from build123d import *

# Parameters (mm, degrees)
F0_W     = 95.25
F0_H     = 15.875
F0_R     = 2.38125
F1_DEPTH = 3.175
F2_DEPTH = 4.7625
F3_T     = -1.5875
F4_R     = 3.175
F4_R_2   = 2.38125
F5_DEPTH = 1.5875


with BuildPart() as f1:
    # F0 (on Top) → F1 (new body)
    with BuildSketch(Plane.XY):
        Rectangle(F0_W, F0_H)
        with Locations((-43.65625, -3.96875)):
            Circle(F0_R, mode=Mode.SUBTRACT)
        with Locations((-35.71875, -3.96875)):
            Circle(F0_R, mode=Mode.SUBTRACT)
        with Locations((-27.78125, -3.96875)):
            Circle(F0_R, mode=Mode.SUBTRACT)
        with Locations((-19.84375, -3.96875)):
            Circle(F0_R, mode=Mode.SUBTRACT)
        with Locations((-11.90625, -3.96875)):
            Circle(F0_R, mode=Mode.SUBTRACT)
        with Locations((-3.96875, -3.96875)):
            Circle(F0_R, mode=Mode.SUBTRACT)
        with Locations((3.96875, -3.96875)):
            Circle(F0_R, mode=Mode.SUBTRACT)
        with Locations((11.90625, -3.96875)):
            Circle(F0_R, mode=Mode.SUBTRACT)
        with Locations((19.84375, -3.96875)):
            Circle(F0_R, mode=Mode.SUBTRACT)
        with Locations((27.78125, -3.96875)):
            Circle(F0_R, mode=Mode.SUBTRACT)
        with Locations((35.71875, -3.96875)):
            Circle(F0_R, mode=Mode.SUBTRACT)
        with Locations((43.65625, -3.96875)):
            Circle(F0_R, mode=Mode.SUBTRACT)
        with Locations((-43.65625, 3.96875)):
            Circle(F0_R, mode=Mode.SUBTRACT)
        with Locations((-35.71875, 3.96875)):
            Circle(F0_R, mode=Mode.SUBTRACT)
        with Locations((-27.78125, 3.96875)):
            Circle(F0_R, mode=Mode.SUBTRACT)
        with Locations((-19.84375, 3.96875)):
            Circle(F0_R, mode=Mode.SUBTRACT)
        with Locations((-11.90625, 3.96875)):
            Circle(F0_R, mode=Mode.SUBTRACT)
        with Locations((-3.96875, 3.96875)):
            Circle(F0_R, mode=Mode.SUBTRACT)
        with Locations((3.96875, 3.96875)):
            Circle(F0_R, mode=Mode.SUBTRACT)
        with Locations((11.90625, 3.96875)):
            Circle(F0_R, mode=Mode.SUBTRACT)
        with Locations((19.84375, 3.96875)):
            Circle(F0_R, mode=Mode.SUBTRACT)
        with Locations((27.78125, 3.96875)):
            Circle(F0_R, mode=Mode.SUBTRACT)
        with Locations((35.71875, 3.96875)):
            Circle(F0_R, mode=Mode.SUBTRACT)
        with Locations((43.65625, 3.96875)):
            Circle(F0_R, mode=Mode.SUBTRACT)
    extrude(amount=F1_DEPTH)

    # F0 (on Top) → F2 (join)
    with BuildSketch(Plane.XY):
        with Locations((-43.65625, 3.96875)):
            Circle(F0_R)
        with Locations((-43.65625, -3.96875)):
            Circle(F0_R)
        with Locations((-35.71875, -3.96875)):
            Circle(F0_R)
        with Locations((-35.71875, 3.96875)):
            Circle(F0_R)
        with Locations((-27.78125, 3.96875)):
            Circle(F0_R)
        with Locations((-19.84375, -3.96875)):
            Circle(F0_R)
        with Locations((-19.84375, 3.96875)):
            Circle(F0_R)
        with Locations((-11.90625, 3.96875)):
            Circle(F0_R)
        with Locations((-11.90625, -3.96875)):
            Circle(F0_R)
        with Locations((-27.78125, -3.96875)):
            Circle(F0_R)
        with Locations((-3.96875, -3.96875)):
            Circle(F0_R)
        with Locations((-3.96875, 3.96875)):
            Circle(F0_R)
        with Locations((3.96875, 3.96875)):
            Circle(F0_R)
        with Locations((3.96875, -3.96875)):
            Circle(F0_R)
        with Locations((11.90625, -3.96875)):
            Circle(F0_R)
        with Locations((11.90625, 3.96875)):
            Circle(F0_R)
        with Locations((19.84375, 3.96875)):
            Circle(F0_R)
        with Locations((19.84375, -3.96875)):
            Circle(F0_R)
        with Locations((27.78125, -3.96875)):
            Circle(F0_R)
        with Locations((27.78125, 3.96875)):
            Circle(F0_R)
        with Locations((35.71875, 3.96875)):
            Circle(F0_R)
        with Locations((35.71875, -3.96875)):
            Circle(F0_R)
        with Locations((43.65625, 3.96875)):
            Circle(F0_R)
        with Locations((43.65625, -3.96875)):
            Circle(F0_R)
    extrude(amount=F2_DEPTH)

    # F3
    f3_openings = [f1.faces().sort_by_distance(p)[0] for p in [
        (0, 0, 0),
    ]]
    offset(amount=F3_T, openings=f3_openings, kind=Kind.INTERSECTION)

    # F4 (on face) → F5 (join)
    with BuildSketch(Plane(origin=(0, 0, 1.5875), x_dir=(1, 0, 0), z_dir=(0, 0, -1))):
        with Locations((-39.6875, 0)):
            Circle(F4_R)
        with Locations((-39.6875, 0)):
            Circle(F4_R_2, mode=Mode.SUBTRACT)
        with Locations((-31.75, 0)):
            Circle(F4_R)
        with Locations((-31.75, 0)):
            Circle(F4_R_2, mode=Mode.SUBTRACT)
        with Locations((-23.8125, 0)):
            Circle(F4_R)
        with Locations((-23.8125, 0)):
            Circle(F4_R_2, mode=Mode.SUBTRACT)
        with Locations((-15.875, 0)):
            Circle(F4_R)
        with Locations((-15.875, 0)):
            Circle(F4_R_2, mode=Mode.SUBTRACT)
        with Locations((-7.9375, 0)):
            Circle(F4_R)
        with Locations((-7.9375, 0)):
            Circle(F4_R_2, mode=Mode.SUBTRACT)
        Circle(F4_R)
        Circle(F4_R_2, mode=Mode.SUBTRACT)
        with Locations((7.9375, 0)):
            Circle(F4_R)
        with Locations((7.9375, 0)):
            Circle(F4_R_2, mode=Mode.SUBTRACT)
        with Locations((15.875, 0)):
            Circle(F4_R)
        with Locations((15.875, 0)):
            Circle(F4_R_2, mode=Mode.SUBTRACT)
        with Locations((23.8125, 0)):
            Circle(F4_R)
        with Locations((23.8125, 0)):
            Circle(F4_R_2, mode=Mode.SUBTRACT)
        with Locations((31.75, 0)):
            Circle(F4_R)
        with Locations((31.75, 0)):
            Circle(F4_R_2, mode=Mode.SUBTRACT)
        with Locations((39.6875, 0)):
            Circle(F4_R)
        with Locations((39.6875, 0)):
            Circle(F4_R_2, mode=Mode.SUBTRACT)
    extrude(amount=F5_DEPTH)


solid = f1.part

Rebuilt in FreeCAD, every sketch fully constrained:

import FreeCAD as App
import Part
import Sketcher
Q = App.Units.Quantity


def faces_at(feature, points):
    """Names of the faces that lie closest to the given points."""
    faces = feature.Shape.Faces
    near = lambda p: min(range(len(faces)), key=lambda i: faces[i].distToShape(Part.Vertex(*p))[0])
    return sorted({f"Face{near(p) + 1}" for p in points})

doc = App.newDocument("Part")
body = doc.addObject("PartDesign::Body", "Body")

sketch1 = body.newObject("Sketcher::SketchObject", "Sketch")
sketch1.AttachmentSupport = (doc.getObject("XY_Plane"), [""])
sketch1.MapMode = "FlatFace"
sketch1.addGeometry([
    Part.LineSegment(App.Vector(-47.6, 7.9, 0), App.Vector(-47.6, -7.9, 0)),
    Part.LineSegment(App.Vector(-47.6, -7.9, 0), App.Vector(47.6, -7.9, 0)),
    Part.LineSegment(App.Vector(47.6, -7.9, 0), App.Vector(47.6, 7.9, 0)),
    Part.LineSegment(App.Vector(47.6, 7.9, 0), App.Vector(-47.6, 7.9, 0)),
    Part.Circle(App.Vector(-43.7, -4, 0), App.Vector(0, 0, 1), 2.4),
    Part.Circle(App.Vector(-35.7, -4, 0), App.Vector(0, 0, 1), 2.4),
    Part.Circle(App.Vector(-27.8, -4, 0), App.Vector(0, 0, 1), 2.4),
    Part.Circle(App.Vector(-19.8, -4, 0), App.Vector(0, 0, 1), 2.4),
    Part.Circle(App.Vector(-11.9, -4, 0), App.Vector(0, 0, 1), 2.4),
    Part.Circle(App.Vector(-4, -4, 0), App.Vector(0, 0, 1), 2.4),
    Part.Circle(App.Vector(4, -4, 0), App.Vector(0, 0, 1), 2.4),
    Part.Circle(App.Vector(11.9, -4, 0), App.Vector(0, 0, 1), 2.4),
    Part.Circle(App.Vector(19.8, -4, 0), App.Vector(0, 0, 1), 2.4),
    Part.Circle(App.Vector(27.8, -4, 0), App.Vector(0, 0, 1), 2.4),
    Part.Circle(App.Vector(35.7, -4, 0), App.Vector(0, 0, 1), 2.4),
    Part.Circle(App.Vector(43.7, -4, 0), App.Vector(0, 0, 1), 2.4),
    Part.Circle(App.Vector(-43.7, 4, 0), App.Vector(0, 0, 1), 2.4),
    Part.Circle(App.Vector(-35.7, 4, 0), App.Vector(0, 0, 1), 2.4),
    Part.Circle(App.Vector(-27.8, 4, 0), App.Vector(0, 0, 1), 2.4),
    Part.Circle(App.Vector(-19.8, 4, 0), App.Vector(0, 0, 1), 2.4),
    Part.Circle(App.Vector(-11.9, 4, 0), App.Vector(0, 0, 1), 2.4),
    Part.Circle(App.Vector(-4, 4, 0), App.Vector(0, 0, 1), 2.4),
    Part.Circle(App.Vector(4, 4, 0), App.Vector(0, 0, 1), 2.4),
    Part.Circle(App.Vector(11.9, 4, 0), App.Vector(0, 0, 1), 2.4),
    Part.Circle(App.Vector(19.8, 4, 0), App.Vector(0, 0, 1), 2.4),
    Part.Circle(App.Vector(27.8, 4, 0), App.Vector(0, 0, 1), 2.4),
    Part.Circle(App.Vector(35.7, 4, 0), App.Vector(0, 0, 1), 2.4),
    Part.Circle(App.Vector(43.7, 4, 0), App.Vector(0, 0, 1), 2.4),
], False)
sketch1.addConstraint([
    Sketcher.Constraint("Coincident", 0, 2, 1, 1),
    Sketcher.Constraint("Coincident", 1, 2, 2, 1),
    Sketcher.Constraint("Coincident", 2, 2, 3, 1),
    Sketcher.Constraint("Coincident", 3, 2, 0, 1),
    Sketcher.Constraint("Vertical", 0),
    Sketcher.Constraint("Horizontal", 1),
    Sketcher.Constraint("Vertical", 2),
    Sketcher.Constraint("Horizontal", 3),
    Sketcher.Constraint("Equal", 4, 5),
    Sketcher.Constraint("Equal", 5, 6),
    Sketcher.Constraint("Equal", 6, 7),
    Sketcher.Constraint("Equal", 7, 8),
    Sketcher.Constraint("Equal", 8, 9),
    Sketcher.Constraint("Equal", 9, 10),
    Sketcher.Constraint("Equal", 10, 11),
    Sketcher.Constraint("Equal", 11, 12),
    Sketcher.Constraint("Equal", 12, 13),
    Sketcher.Constraint("Equal", 13, 14),
    Sketcher.Constraint("Equal", 14, 15),
    Sketcher.Constraint("Equal", 15, 16),
    Sketcher.Constraint("Equal", 16, 17),
    Sketcher.Constraint("Equal", 17, 18),
    Sketcher.Constraint("Equal", 18, 19),
    Sketcher.Constraint("Equal", 19, 20),
    Sketcher.Constraint("Equal", 20, 21),
    Sketcher.Constraint("Equal", 21, 22),
    Sketcher.Constraint("Equal", 22, 23),
    Sketcher.Constraint("Equal", 23, 24),
    Sketcher.Constraint("Equal", 24, 25),
    Sketcher.Constraint("Equal", 25, 26),
    Sketcher.Constraint("Equal", 26, 27),
    Sketcher.Constraint("Symmetric", 15, 3, 16, 3, -1, 1),
    Sketcher.Constraint("Symmetric", 14, 3, 17, 3, -1, 1),
    Sketcher.Constraint("Symmetric", 13, 3, 18, 3, -1, 1),
    Sketcher.Constraint("Symmetric", 12, 3, 19, 3, -1, 1),
    Sketcher.Constraint("Symmetric", 11, 3, 20, 3, -1, 1),
    Sketcher.Constraint("Symmetric", 10, 3, 21, 3, -1, 1),
    Sketcher.Constraint("Symmetric", 9, 3, 22, 3, -1, 1),
    Sketcher.Constraint("Symmetric", 8, 3, 23, 3, -1, 1),
    Sketcher.Constraint("Symmetric", 7, 3, 24, 3, -1, 1),
    Sketcher.Constraint("Symmetric", 6, 3, 25, 3, -1, 1),
    Sketcher.Constraint("Symmetric", 5, 3, 26, 3, -1, 1),
    Sketcher.Constraint("Symmetric", 4, 3, 27, 3, -1, 1),
    Sketcher.Constraint("Symmetric", 0, 2, 2, 2, -1, 1),
    Sketcher.Constraint("Symmetric", 9, 3, 10, 3, -2),
    Sketcher.Constraint("Symmetric", 8, 3, 11, 3, -2),
    Sketcher.Constraint("Symmetric", 7, 3, 12, 3, -2),
    Sketcher.Constraint("Symmetric", 6, 3, 13, 3, -2),
    Sketcher.Constraint("Symmetric", 5, 3, 14, 3, -2),
    Sketcher.Constraint("Symmetric", 4, 3, 15, 3, -2),
    Sketcher.Constraint("Horizontal", 4, 3, 5, 3),
    Sketcher.Constraint("Horizontal", 5, 3, 6, 3),
    Sketcher.Constraint("Horizontal", 6, 3, 7, 3),
    Sketcher.Constraint("Horizontal", 7, 3, 8, 3),
    Sketcher.Constraint("Horizontal", 8, 3, 9, 3),
    Sketcher.Constraint("Diameter", 4, Q("0.1875 in")),
    Sketcher.Constraint("DistanceX", 1, 1, 1, 2, Q("3.75 in")),
    Sketcher.Constraint("DistanceY", 0, 2, 0, 1, Q("0.625 in")),
    Sketcher.Constraint("DistanceX", 4, 3, 8, 3, Q("1.25 in")),
    Sketcher.Constraint("DistanceX", 5, 3, 9, 3, Q("1.25 in")),
    Sketcher.Constraint("DistanceX", 6, 3, 10, 3, Q("1.25 in")),
    Sketcher.Constraint("DistanceX", 7, 3, 11, 3, Q("1.25 in")),
    Sketcher.Constraint("DistanceX", 4, 3, -1, 1, Q("1.71875 in")),
    Sketcher.Constraint("DistanceY", 4, 3, -1, 1, Q("0.15625 in")),
    Sketcher.Constraint("DistanceX", 5, 3, -1, 1, Q("1.40625 in")),
])
pad1 = body.newObject("PartDesign::Pad", "Pad")
pad1.Profile = sketch1
pad1.Length = Q("0.125 in")

sketch2 = body.newObject("Sketcher::SketchObject", "Sketch001")
sketch2.AttachmentSupport = (doc.getObject("XY_Plane"), [""])
sketch2.MapMode = "FlatFace"
sketch2.addGeometry([
    Part.Circle(App.Vector(-43.7, 4, 0), App.Vector(0, 0, 1), 2.4),
    Part.Circle(App.Vector(-43.7, -4, 0), App.Vector(0, 0, 1), 2.4),
    Part.Circle(App.Vector(-35.7, -4, 0), App.Vector(0, 0, 1), 2.4),
    Part.Circle(App.Vector(-35.7, 4, 0), App.Vector(0, 0, 1), 2.4),
    Part.Circle(App.Vector(-27.8, 4, 0), App.Vector(0, 0, 1), 2.4),
    Part.Circle(App.Vector(-19.8, -4, 0), App.Vector(0, 0, 1), 2.4),
    Part.Circle(App.Vector(-19.8, 4, 0), App.Vector(0, 0, 1), 2.4),
    Part.Circle(App.Vector(-11.9, 4, 0), App.Vector(0, 0, 1), 2.4),
    Part.Circle(App.Vector(-11.9, -4, 0), App.Vector(0, 0, 1), 2.4),
    Part.Circle(App.Vector(-27.8, -4, 0), App.Vector(0, 0, 1), 2.4),
    Part.Circle(App.Vector(-4, -4, 0), App.Vector(0, 0, 1), 2.4),
    Part.Circle(App.Vector(-4, 4, 0), App.Vector(0, 0, 1), 2.4),
    Part.Circle(App.Vector(4, 4, 0), App.Vector(0, 0, 1), 2.4),
    Part.Circle(App.Vector(4, -4, 0), App.Vector(0, 0, 1), 2.4),
    Part.Circle(App.Vector(11.9, -4, 0), App.Vector(0, 0, 1), 2.4),
    Part.Circle(App.Vector(11.9, 4, 0), App.Vector(0, 0, 1), 2.4),
    Part.Circle(App.Vector(19.8, 4, 0), App.Vector(0, 0, 1), 2.4),
    Part.Circle(App.Vector(19.8, -4, 0), App.Vector(0, 0, 1), 2.4),
    Part.Circle(App.Vector(27.8, -4, 0), App.Vector(0, 0, 1), 2.4),
    Part.Circle(App.Vector(27.8, 4, 0), App.Vector(0, 0, 1), 2.4),
    Part.Circle(App.Vector(35.7, 4, 0), App.Vector(0, 0, 1), 2.4),
    Part.Circle(App.Vector(35.7, -4, 0), App.Vector(0, 0, 1), 2.4),
    Part.Circle(App.Vector(43.7, 4, 0), App.Vector(0, 0, 1), 2.4),
    Part.Circle(App.Vector(43.7, -4, 0), App.Vector(0, 0, 1), 2.4),
], False)
sketch2.addConstraint([
    Sketcher.Constraint("Equal", 0, 1),
    Sketcher.Constraint("Equal", 1, 2),
    Sketcher.Constraint("Equal", 2, 3),
    Sketcher.Constraint("Equal", 3, 4),
    Sketcher.Constraint("Equal", 4, 5),
    Sketcher.Constraint("Equal", 5, 6),
    Sketcher.Constraint("Equal", 6, 7),
    Sketcher.Constraint("Equal", 7, 8),
    Sketcher.Constraint("Equal", 8, 9),
    Sketcher.Constraint("Equal", 9, 10),
    Sketcher.Constraint("Equal", 10, 11),
    Sketcher.Constraint("Equal", 11, 12),
    Sketcher.Constraint("Equal", 12, 13),
    Sketcher.Constraint("Equal", 13, 14),
    Sketcher.Constraint("Equal", 14, 15),
    Sketcher.Constraint("Equal", 15, 16),
    Sketcher.Constraint("Equal", 16, 17),
    Sketcher.Constraint("Equal", 17, 18),
    Sketcher.Constraint("Equal", 18, 19),
    Sketcher.Constraint("Equal", 19, 20),
    Sketcher.Constraint("Equal", 20, 21),
    Sketcher.Constraint("Equal", 21, 22),
    Sketcher.Constraint("Equal", 22, 23),
    Sketcher.Constraint("Symmetric", 10, 3, 12, 3, -1, 1),
    Sketcher.Constraint("Symmetric", 11, 3, 13, 3, -1, 1),
    Sketcher.Constraint("Symmetric", 7, 3, 14, 3, -1, 1),
    Sketcher.Constraint("Symmetric", 8, 3, 15, 3, -1, 1),
    Sketcher.Constraint("Symmetric", 5, 3, 16, 3, -1, 1),
    Sketcher.Constraint("Symmetric", 6, 3, 17, 3, -1, 1),
    Sketcher.Constraint("Symmetric", 4, 3, 18, 3, -1, 1),
    Sketcher.Constraint("Symmetric", 9, 3, 19, 3, -1, 1),
    Sketcher.Constraint("Symmetric", 2, 3, 20, 3, -1, 1),
    Sketcher.Constraint("Symmetric", 3, 3, 21, 3, -1, 1),
    Sketcher.Constraint("Symmetric", 1, 3, 22, 3, -1, 1),
    Sketcher.Constraint("Symmetric", 0, 3, 23, 3, -1, 1),
    Sketcher.Constraint("Symmetric", 11, 3, 12, 3, -2),
    Sketcher.Constraint("Symmetric", 8, 3, 14, 3, -2),
    Sketcher.Constraint("Symmetric", 6, 3, 16, 3, -2),
    Sketcher.Constraint("Symmetric", 9, 3, 18, 3, -2),
    Sketcher.Constraint("Symmetric", 3, 3, 20, 3, -2),
    Sketcher.Constraint("Symmetric", 0, 3, 22, 3, -2),
    Sketcher.Constraint("Horizontal", 1, 3, 2, 3),
    Sketcher.Constraint("Horizontal", 3, 3, 4, 3),
    Sketcher.Constraint("Horizontal", 2, 3, 5, 3),
    Sketcher.Constraint("Horizontal", 6, 3, 7, 3),
    Sketcher.Constraint("Horizontal", 9, 3, 10, 3),
    Sketcher.Constraint("Diameter", 0, Q("0.1875 in")),
    Sketcher.Constraint("DistanceX", 0, 3, -1, 1, Q("1.71875 in")),
    Sketcher.Constraint("DistanceY", -1, 1, 0, 3, Q("0.15625 in")),
    Sketcher.Constraint("DistanceX", 2, 3, -1, 1, Q("1.40625 in")),
    Sketcher.Constraint("DistanceX", 4, 3, -1, 1, Q("1.09375 in")),
    Sketcher.Constraint("DistanceX", 5, 3, -1, 1, Q("0.78125 in")),
    Sketcher.Constraint("DistanceX", 7, 3, -1, 1, Q("0.46875 in")),
    Sketcher.Constraint("DistanceX", 10, 3, -1, 1, Q("0.15625 in")),
])
pad2 = body.newObject("PartDesign::Pad", "Pad001")
pad2.Profile = sketch2
pad2.Length = Q("0.1875 in")
doc.recompute()

thickness = body.newObject("PartDesign::Thickness", "Thickness")
thickness.Base = (pad2, faces_at(pad2, [(0, 0, 0)]))
thickness.Value = Q("0.0625 in")
thickness.Reversed = True
thickness.Join = "Intersection"

sketch3 = body.newObject("Sketcher::SketchObject", "Sketch002")
sketch3.AttachmentSupport = (doc.getObject("XY_Plane"), [""])
sketch3.MapMode = "FlatFace"
sketch3.AttachmentOffset = App.Placement(App.Vector(0, 0, 0.0625 * 25.4), App.Rotation())
sketch3.addGeometry([
    Part.Circle(App.Vector(-39.7, 0, 0), App.Vector(0, 0, 1), 3.2),
    Part.Circle(App.Vector(-39.7, 0, 0), App.Vector(0, 0, 1), 2.4),
    Part.Circle(App.Vector(-31.8, 0, 0), App.Vector(0, 0, 1), 3.2),
    Part.Circle(App.Vector(-31.8, 0, 0), App.Vector(0, 0, 1), 2.4),
    Part.Circle(App.Vector(-23.8, 0, 0), App.Vector(0, 0, 1), 3.2),
    Part.Circle(App.Vector(-23.8, 0, 0), App.Vector(0, 0, 1), 2.4),
    Part.Circle(App.Vector(-15.9, 0, 0), App.Vector(0, 0, 1), 3.2),
    Part.Circle(App.Vector(-15.9, 0, 0), App.Vector(0, 0, 1), 2.4),
    Part.Circle(App.Vector(-7.9, 0, 0), App.Vector(0, 0, 1), 3.2),
    Part.Circle(App.Vector(-7.9, 0, 0), App.Vector(0, 0, 1), 2.4),
    Part.Circle(App.Vector(0, 0, 0), App.Vector(0, 0, 1), 3.2),
    Part.Circle(App.Vector(0, 0, 0), App.Vector(0, 0, 1), 2.4),
    Part.Circle(App.Vector(7.9, 0, 0), App.Vector(0, 0, 1), 3.2),
    Part.Circle(App.Vector(7.9, 0, 0), App.Vector(0, 0, 1), 2.4),
    Part.Circle(App.Vector(15.9, 0, 0), App.Vector(0, 0, 1), 3.2),
    Part.Circle(App.Vector(15.9, 0, 0), App.Vector(0, 0, 1), 2.4),
    Part.Circle(App.Vector(23.8, 0, 0), App.Vector(0, 0, 1), 3.2),
    Part.Circle(App.Vector(23.8, 0, 0), App.Vector(0, 0, 1), 2.4),
    Part.Circle(App.Vector(31.8, 0, 0), App.Vector(0, 0, 1), 3.2),
    Part.Circle(App.Vector(31.8, 0, 0), App.Vector(0, 0, 1), 2.4),
    Part.Circle(App.Vector(39.7, 0, 0), App.Vector(0, 0, 1), 3.2),
    Part.Circle(App.Vector(39.7, 0, 0), App.Vector(0, 0, 1), 2.4),
], False)
sketch3.addConstraint([
    Sketcher.Constraint("Coincident", 10, 3, -1, 1),
    Sketcher.Constraint("Coincident", 11, 3, -1, 1),
    Sketcher.Constraint("Coincident", 1, 3, 0, 3),
    Sketcher.Constraint("Coincident", 3, 3, 2, 3),
    Sketcher.Constraint("Coincident", 5, 3, 4, 3),
    Sketcher.Constraint("Coincident", 7, 3, 6, 3),
    Sketcher.Constraint("Coincident", 9, 3, 8, 3),
    Sketcher.Constraint("Coincident", 13, 3, 12, 3),
    Sketcher.Constraint("Coincident", 15, 3, 14, 3),
    Sketcher.Constraint("Coincident", 17, 3, 16, 3),
    Sketcher.Constraint("Coincident", 19, 3, 18, 3),
    Sketcher.Constraint("Coincident", 21, 3, 20, 3),
    Sketcher.Constraint("Equal", 0, 2),
    Sketcher.Constraint("Equal", 1, 3),
    Sketcher.Constraint("Equal", 2, 4),
    Sketcher.Constraint("Equal", 3, 5),
    Sketcher.Constraint("Equal", 4, 6),
    Sketcher.Constraint("Equal", 5, 7),
    Sketcher.Constraint("Equal", 6, 8),
    Sketcher.Constraint("Equal", 7, 9),
    Sketcher.Constraint("Equal", 8, 10),
    Sketcher.Constraint("Equal", 9, 11),
    Sketcher.Constraint("Equal", 10, 12),
    Sketcher.Constraint("Equal", 11, 13),
    Sketcher.Constraint("Equal", 12, 14),
    Sketcher.Constraint("Equal", 13, 15),
    Sketcher.Constraint("Equal", 14, 16),
    Sketcher.Constraint("Equal", 15, 17),
    Sketcher.Constraint("Equal", 16, 18),
    Sketcher.Constraint("Equal", 17, 19),
    Sketcher.Constraint("Equal", 18, 20),
    Sketcher.Constraint("Equal", 19, 21),
    Sketcher.Constraint("Symmetric", 8, 3, 12, 3, -1, 1),
    Sketcher.Constraint("Symmetric", 6, 3, 14, 3, -1, 1),
    Sketcher.Constraint("Symmetric", 4, 3, 16, 3, -1, 1),
    Sketcher.Constraint("Symmetric", 2, 3, 18, 3, -1, 1),
    Sketcher.Constraint("Symmetric", 0, 3, 20, 3, -1, 1),
    Sketcher.Constraint("PointOnObject", 0, 3, -1),
    Sketcher.Constraint("PointOnObject", 2, 3, -1),
    Sketcher.Constraint("PointOnObject", 4, 3, -1),
    Sketcher.Constraint("PointOnObject", 6, 3, -1),
    Sketcher.Constraint("PointOnObject", 8, 3, -1),
    Sketcher.Constraint("Diameter", 0, Q("0.25 in")),
    Sketcher.Constraint("Diameter", 1, Q("0.1875 in")),
    Sketcher.Constraint("DistanceX", 2, 3, -1, 1, Q("1.25 in")),
    Sketcher.Constraint("DistanceX", 0, 3, -1, 1, Q("1.5625 in")),
    Sketcher.Constraint("DistanceX", 4, 3, -1, 1, Q("0.9375 in")),
    Sketcher.Constraint("DistanceX", 6, 3, -1, 1, Q("0.625 in")),
    Sketcher.Constraint("DistanceX", 8, 3, -1, 1, Q("0.3125 in")),
])
pad3 = body.newObject("PartDesign::Pad", "Pad002")
pad3.Profile = sketch3
pad3.Length = Q("0.0625 in")
pad3.Reversed = True

doc.recompute()
